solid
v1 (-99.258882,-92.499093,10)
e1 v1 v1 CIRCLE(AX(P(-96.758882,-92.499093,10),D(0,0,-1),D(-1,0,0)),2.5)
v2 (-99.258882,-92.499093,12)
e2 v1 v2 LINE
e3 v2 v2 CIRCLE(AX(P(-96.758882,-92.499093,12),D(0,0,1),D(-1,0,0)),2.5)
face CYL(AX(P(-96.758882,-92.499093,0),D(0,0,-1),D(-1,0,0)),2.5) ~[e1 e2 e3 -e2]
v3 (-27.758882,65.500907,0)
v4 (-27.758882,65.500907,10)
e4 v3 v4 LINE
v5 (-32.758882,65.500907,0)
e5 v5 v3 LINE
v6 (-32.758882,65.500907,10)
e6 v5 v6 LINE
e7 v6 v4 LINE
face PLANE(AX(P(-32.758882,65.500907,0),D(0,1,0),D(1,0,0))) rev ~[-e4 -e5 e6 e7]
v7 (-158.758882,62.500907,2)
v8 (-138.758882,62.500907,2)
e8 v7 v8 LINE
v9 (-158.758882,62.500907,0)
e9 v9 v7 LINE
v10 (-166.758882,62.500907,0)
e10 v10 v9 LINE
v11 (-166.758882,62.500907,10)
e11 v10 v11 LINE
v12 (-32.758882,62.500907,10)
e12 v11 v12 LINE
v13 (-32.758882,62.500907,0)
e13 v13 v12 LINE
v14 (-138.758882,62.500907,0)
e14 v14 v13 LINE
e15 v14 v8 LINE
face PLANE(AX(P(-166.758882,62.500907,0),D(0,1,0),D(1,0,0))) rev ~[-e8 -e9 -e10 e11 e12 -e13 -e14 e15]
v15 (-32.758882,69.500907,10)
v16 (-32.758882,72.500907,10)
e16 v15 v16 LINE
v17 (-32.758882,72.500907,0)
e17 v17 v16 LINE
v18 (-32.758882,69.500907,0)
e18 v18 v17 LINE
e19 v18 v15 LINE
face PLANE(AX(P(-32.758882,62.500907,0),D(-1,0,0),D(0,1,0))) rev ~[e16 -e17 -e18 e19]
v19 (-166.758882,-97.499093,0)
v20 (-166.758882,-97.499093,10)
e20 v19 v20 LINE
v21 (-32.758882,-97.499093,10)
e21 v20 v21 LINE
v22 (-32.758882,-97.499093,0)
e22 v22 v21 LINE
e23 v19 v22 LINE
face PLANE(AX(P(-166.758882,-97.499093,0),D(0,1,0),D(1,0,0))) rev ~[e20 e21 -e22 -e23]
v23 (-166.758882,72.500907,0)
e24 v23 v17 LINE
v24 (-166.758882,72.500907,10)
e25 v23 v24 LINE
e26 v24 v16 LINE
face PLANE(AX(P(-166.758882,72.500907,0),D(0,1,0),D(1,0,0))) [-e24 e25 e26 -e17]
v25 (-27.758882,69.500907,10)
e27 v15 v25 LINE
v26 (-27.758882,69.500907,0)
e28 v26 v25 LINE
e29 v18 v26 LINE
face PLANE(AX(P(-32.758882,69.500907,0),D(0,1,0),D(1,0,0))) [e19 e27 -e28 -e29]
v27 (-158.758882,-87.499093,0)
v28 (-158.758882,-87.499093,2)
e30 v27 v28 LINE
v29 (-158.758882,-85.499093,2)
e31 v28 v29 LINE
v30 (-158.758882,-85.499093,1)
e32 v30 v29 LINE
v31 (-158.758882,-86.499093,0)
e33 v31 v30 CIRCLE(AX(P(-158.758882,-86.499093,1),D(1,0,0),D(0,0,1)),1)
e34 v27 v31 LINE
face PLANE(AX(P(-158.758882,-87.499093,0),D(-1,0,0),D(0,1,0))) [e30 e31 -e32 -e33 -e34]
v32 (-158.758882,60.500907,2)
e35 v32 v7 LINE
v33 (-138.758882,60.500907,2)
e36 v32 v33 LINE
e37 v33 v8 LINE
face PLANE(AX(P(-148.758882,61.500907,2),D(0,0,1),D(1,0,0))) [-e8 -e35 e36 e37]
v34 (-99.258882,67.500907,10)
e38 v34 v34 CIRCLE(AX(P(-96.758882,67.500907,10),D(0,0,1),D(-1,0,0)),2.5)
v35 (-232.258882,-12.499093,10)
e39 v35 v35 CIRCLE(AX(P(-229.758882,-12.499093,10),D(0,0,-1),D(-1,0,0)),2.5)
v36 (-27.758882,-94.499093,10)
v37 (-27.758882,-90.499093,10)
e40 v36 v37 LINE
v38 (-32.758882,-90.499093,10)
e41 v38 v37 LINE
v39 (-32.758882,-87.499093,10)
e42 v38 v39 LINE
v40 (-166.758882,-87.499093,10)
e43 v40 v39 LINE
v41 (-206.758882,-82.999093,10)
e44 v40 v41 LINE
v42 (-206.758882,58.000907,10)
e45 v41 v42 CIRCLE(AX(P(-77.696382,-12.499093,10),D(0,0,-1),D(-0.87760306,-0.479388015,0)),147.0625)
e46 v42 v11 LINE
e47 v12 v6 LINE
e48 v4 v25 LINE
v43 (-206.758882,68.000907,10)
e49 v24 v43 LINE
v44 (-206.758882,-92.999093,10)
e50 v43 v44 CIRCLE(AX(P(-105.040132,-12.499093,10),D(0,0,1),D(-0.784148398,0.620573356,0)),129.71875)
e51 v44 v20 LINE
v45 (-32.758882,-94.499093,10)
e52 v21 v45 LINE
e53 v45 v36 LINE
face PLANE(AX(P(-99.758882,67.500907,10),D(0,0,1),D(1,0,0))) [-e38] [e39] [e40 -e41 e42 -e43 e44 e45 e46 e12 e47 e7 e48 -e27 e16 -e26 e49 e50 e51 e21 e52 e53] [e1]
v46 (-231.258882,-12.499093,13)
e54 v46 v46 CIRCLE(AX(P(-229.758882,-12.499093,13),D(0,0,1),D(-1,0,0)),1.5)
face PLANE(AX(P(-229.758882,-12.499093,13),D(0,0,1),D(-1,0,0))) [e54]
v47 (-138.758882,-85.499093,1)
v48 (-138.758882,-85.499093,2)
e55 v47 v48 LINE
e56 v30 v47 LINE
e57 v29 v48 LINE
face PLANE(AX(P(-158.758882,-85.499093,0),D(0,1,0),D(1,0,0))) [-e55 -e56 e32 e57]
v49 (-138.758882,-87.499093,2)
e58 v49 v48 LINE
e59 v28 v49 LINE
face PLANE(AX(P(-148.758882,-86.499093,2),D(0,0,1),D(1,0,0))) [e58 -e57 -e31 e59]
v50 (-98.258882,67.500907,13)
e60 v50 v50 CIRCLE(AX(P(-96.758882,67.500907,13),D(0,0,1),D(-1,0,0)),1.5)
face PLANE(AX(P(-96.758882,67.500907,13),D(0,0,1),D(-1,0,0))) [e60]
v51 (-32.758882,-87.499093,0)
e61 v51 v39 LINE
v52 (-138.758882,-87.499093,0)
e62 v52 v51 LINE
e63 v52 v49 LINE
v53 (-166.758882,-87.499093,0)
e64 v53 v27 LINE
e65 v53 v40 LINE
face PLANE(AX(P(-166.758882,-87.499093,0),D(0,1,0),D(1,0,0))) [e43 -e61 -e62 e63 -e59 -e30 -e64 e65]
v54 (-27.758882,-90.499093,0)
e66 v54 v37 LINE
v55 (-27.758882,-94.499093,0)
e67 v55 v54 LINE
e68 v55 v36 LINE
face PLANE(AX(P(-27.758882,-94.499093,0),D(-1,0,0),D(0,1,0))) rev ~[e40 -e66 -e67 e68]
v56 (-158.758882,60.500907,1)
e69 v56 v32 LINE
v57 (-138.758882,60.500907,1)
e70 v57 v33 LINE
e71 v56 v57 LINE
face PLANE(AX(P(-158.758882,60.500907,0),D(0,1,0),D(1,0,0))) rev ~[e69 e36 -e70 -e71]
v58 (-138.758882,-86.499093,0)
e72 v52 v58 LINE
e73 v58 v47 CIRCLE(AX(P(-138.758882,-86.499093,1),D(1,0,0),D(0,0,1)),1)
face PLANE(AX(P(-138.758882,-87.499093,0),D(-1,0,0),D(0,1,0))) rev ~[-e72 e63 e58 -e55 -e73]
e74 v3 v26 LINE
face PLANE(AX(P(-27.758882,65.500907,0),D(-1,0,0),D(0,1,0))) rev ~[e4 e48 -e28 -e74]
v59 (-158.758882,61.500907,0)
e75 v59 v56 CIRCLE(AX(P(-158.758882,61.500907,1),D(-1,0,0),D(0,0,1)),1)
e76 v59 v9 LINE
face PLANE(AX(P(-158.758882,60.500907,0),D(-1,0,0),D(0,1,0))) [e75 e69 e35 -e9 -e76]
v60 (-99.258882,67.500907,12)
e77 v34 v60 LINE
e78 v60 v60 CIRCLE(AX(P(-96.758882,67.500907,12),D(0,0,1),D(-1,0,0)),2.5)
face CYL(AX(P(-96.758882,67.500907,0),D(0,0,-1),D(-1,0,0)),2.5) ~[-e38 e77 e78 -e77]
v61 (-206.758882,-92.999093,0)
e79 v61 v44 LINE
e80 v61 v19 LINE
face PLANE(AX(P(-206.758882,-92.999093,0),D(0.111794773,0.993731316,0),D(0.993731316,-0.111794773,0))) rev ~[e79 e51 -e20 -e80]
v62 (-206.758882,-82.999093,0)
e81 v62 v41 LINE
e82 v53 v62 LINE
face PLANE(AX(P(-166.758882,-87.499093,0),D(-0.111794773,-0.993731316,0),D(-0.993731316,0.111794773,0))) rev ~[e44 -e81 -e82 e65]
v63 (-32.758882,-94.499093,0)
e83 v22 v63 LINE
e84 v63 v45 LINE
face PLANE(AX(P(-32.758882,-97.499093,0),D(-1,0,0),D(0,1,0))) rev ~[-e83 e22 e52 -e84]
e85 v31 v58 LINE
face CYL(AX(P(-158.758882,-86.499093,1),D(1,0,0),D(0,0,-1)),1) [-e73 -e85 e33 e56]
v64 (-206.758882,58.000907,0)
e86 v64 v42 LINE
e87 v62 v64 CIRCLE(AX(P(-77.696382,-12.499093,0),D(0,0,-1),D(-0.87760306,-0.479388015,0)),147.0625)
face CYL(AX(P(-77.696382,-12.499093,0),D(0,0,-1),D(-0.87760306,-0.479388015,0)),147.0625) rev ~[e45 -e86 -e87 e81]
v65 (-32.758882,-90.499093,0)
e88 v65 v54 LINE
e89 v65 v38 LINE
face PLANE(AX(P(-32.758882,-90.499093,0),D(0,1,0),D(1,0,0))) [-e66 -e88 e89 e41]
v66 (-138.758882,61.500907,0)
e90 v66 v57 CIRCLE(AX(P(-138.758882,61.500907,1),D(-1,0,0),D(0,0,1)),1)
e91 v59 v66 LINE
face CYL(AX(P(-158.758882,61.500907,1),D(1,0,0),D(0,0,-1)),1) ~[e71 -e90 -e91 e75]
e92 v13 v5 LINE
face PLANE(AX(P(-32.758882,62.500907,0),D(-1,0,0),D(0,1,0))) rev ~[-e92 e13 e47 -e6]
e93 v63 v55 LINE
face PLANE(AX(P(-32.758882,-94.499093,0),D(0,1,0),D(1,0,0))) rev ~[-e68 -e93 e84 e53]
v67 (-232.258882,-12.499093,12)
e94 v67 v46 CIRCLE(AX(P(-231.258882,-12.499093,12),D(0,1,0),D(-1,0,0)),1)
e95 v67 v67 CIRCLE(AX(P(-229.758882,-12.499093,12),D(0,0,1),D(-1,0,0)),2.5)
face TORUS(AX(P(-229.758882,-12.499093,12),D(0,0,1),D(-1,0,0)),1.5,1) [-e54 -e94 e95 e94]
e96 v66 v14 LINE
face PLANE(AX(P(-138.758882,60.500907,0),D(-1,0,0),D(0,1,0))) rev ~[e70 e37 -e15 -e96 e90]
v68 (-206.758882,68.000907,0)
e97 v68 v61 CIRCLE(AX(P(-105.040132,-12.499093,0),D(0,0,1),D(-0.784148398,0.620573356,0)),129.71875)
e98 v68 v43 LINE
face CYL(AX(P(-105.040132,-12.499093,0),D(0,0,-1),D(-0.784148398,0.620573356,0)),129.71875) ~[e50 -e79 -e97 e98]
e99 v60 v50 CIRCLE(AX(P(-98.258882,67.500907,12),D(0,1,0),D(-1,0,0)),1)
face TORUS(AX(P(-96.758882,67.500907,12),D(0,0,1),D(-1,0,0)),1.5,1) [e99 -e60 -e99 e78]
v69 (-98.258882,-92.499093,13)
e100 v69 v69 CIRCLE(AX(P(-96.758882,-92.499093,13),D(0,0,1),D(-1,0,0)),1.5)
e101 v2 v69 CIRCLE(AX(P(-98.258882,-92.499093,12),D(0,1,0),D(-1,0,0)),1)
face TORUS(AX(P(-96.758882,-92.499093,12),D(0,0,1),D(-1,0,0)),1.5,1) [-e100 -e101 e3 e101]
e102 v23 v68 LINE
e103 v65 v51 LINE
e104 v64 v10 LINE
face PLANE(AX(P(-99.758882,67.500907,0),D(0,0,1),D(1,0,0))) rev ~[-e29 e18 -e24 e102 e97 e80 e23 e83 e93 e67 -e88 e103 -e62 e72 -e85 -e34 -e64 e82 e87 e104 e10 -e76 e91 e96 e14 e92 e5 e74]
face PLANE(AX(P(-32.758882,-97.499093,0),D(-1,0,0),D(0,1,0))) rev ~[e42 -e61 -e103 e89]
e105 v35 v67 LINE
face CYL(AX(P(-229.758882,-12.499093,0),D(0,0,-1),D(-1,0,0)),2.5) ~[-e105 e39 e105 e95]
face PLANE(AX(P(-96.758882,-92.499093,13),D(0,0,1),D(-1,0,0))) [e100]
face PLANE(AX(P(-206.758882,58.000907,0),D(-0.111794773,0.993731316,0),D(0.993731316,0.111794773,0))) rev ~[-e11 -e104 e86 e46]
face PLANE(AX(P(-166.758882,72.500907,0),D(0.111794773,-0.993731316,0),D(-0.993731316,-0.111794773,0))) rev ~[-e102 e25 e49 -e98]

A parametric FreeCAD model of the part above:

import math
import FreeCAD as App
import Part
import Sketcher


def edges_at(feature, points):
    """Names of the edges that pass closest to the given points."""
    edges = feature.Shape.Edges
    near = lambda p: min(range(len(edges)), key=lambda i: edges[i].distToShape(Part.Vertex(*p))[0])
    return sorted({f"Edge{near(p) + 1}" for p in points})

doc = App.newDocument("Part")
body = doc.addObject("PartDesign::Body", "Body")

# Sketch on XY plane
sketch1 = body.newObject("Sketcher::SketchObject", "Sketch")
sketch1.AttachmentSupport = (doc.getObject("XY_Plane"), [""])
sketch1.MapMode = "FlatFace"
sketch1.addGeometry([
    Part.LineSegment(App.Vector(-166.8, 62.5, 0), App.Vector(-32.8, 62.5, 0)),  # 0
    Part.LineSegment(App.Vector(-32.8, 62.5, 0), App.Vector(-32.8, 65.5, 0)),  # 1
    Part.LineSegment(App.Vector(-32.8, 65.5, 0), App.Vector(-27.8, 65.5, 0)),  # 2
    Part.LineSegment(App.Vector(-27.8, 65.5, 0), App.Vector(-27.8, 69.5, 0)),  # 3
    Part.LineSegment(App.Vector(-27.8, 69.5, 0), App.Vector(-32.8, 69.5, 0)),  # 4
    Part.LineSegment(App.Vector(-32.8, 69.5, 0), App.Vector(-32.8, 72.5, 0)),  # 5
    Part.LineSegment(App.Vector(-32.8, 72.5, 0), App.Vector(-166.8, 72.5, 0)),  # 6
    Part.LineSegment(App.Vector(-166.8, 72.5, 0), App.Vector(-206.8, 68, 0)),  # 7
    Part.ArcOfCircle(Part.Circle(App.Vector(-105, -12.5, 0), App.Vector(0, 0, 1), 129.7), math.radians(142), math.radians(218)),  # 8
    Part.LineSegment(App.Vector(-206.8, -93, 0), App.Vector(-166.8, -97.5, 0)),  # 9
    Part.LineSegment(App.Vector(-166.8, -97.5, 0), App.Vector(-32.8, -97.5, 0)),  # 10
    Part.LineSegment(App.Vector(-32.8, -97.5, 0), App.Vector(-32.8, -94.5, 0)),  # 11
    Part.LineSegment(App.Vector(-32.8, -94.5, 0), App.Vector(-27.8, -94.5, 0)),  # 12
    Part.LineSegment(App.Vector(-27.8, -94.5, 0), App.Vector(-27.8, -90.5, 0)),  # 13
    Part.LineSegment(App.Vector(-27.8, -90.5, 0), App.Vector(-32.8, -90.5, 0)),  # 14
    Part.LineSegment(App.Vector(-32.8, -90.5, 0), App.Vector(-32.8, -87.5, 0)),  # 15
    Part.LineSegment(App.Vector(-32.8, -87.5, 0), App.Vector(-166.8, -87.5, 0)),  # 16
    Part.LineSegment(App.Vector(-166.8, -87.5, 0), App.Vector(-206.8, -83, 0)),  # 17
    Part.ArcOfCircle(Part.Circle(App.Vector(-77.7, -12.5, 0), App.Vector(0, 0, 1), 147.1), math.radians(151), math.radians(209)),  # 18
    Part.LineSegment(App.Vector(-206.8, 58, 0), App.Vector(-166.8, 62.5, 0)),  # 19
    Part.Circle(App.Vector(-96.8, 67.5, 0), App.Vector(0, 0, 1), 2.5),  # 20
    Part.Circle(App.Vector(-229.8, -12.5, 0), App.Vector(0, 0, 1), 2.5),  # 21
    Part.Circle(App.Vector(-96.8, -92.5, 0), App.Vector(0, 0, 1), 2.5),  # 22
], False)
sketch1.addConstraint([
    Sketcher.Constraint("Coincident", 0, 2, 1, 1),
    Sketcher.Constraint("Coincident", 1, 2, 2, 1),
    Sketcher.Constraint("Coincident", 2, 2, 3, 1),
    Sketcher.Constraint("Coincident", 3, 2, 4, 1),
    Sketcher.Constraint("Coincident", 4, 2, 5, 1),
    Sketcher.Constraint("Coincident", 5, 2, 6, 1),
    Sketcher.Constraint("Coincident", 6, 2, 7, 1),
    Sketcher.Constraint("Coincident", 7, 2, 8, 1),
    Sketcher.Constraint("Coincident", 8, 2, 9, 1),
    Sketcher.Constraint("Coincident", 9, 2, 10, 1),
    Sketcher.Constraint("Coincident", 10, 2, 11, 1),
    Sketcher.Constraint("Coincident", 11, 2, 12, 1),
    Sketcher.Constraint("Coincident", 12, 2, 13, 1),
    Sketcher.Constraint("Coincident", 13, 2, 14, 1),
    Sketcher.Constraint("Coincident", 14, 2, 15, 1),
    Sketcher.Constraint("Coincident", 15, 2, 16, 1),
    Sketcher.Constraint("Coincident", 16, 2, 17, 1),
    Sketcher.Constraint("Coincident", 17, 2, 18, 2),
    Sketcher.Constraint("Coincident", 18, 1, 19, 1),
    Sketcher.Constraint("Coincident", 19, 2, 0, 1),
    Sketcher.Constraint("Horizontal", 0),
    Sketcher.Constraint("Vertical", 1),
    Sketcher.Constraint("Horizontal", 2),
    Sketcher.Constraint("Vertical", 3),
    Sketcher.Constraint("Horizontal", 4),
    Sketcher.Constraint("Vertical", 5),
    Sketcher.Constraint("Horizontal", 6),
    Sketcher.Constraint("Horizontal", 10),
    Sketcher.Constraint("Vertical", 11),
    Sketcher.Constraint("Horizontal", 12),
    Sketcher.Constraint("Vertical", 13),
    Sketcher.Constraint("Horizontal", 14),
    Sketcher.Constraint("Vertical", 15),
    Sketcher.Constraint("Horizontal", 16),
    Sketcher.Constraint("Equal", 20, 21),
    Sketcher.Constraint("Equal", 21, 22),
    Sketcher.Constraint("Parallel", 9, 17),
    Sketcher.Constraint("Parallel", 7, 19),
    Sketcher.Constraint("Horizontal", 8, 3, 18, 3),
    Sketcher.Constraint("Horizontal", 18, 3, 21, 3),
    Sketcher.Constraint("Vertical", 20, 3, 22, 3),
    Sketcher.Constraint("Vertical", 1, 2, 4, 2),
    Sketcher.Constraint("Vertical", 7, 2, 8, 2),
    Sketcher.Constraint("Vertical", 6, 2, 9, 2),
    Sketcher.Constraint("Vertical", 5, 2, 10, 2),
    Sketcher.Constraint("Vertical", 3, 2, 12, 2),
    Sketcher.Constraint("Vertical", 11, 2, 14, 2),
    Sketcher.Constraint("Vertical", 9, 2, 16, 2),
    Sketcher.Constraint("Vertical", 8, 2, 17, 2),
    Sketcher.Constraint("Vertical", 17, 2, 18, 1),
    Sketcher.Constraint("Vertical", 16, 2, 19, 2),
    Sketcher.Constraint("Equal", 1, 5),
    Sketcher.Constraint("Equal", 5, 11),
    Sketcher.Constraint("Equal", 3, 13),
    Sketcher.Constraint("Equal", 7, 9),
    Sketcher.Constraint("Diameter", 20, 5.0),
    Sketcher.Constraint("DistanceX", 0, 1, 0, 2, 134.0),
    Sketcher.Constraint("DistanceX", 2, 1, 2, 2, 5.0),
    Sketcher.Constraint("DistanceY", 1, 1, 1, 2, 3.0),
    Sketcher.Constraint("DistanceY", 3, 1, 3, 2, 4.0),
    Sketcher.Constraint("DistanceY", 8, 3, 20, 3, 80.0),
    Sketcher.Constraint("DistanceX", 21, 3, 20, 3, 133.0),
    Sketcher.Constraint("DistanceY", 22, 3, 8, 3, 80.0),
    Sketcher.Constraint("DistanceX", 20, 3, 0, 2, 64.0),
    Sketcher.Constraint("DistanceY", 0, 2, 20, 3, 5.0),
    Sketcher.Constraint("DistanceX", 7, 2, 6, 2, 40.0),
    Sketcher.Constraint("DistanceY", 8, 2, 7, 2, 161.0),
    Sketcher.Constraint("Radius", 18, 147.0625),
    Sketcher.Constraint("Radius", 8, 129.71875),
    Sketcher.Constraint("DistanceX", 8, 3, -1, 1, 105.040132),
    Sketcher.Constraint("DistanceY", 8, 3, -1, 1, 12.499093),
])
pad1 = body.newObject("PartDesign::Pad", "Pad")
pad1.Profile = sketch1
pad1.Length = 10

# Sketch on XY plane
sketch2 = body.newObject("Sketcher::SketchObject", "Sketch001")
sketch2.AttachmentSupport = (doc.getObject("XY_Plane"), [""])
sketch2.MapMode = "FlatFace"
sketch2.addGeometry([
    Part.Circle(App.Vector(-96.8, 67.5, 0), App.Vector(0, 0, 1), 2.5),
    Part.Circle(App.Vector(-229.8, -12.5, 0), App.Vector(0, 0, 1), 2.5),
    Part.Circle(App.Vector(-96.8, -92.5, 0), App.Vector(0, 0, 1), 2.5),
], False)
sketch2.addConstraint([
    Sketcher.Constraint("Equal", 0, 1),
    Sketcher.Constraint("Equal", 1, 2),
    Sketcher.Constraint("Vertical", 0, 3, 2, 3),
    Sketcher.Constraint("Diameter", 0, 5.0),
    Sketcher.Constraint("DistanceX", 1, 3, 0, 3, 133.0),
    Sketcher.Constraint("DistanceY", 1, 3, 0, 3, 80.0),
    Sketcher.Constraint("DistanceY", 2, 3, 1, 3, 80.0),
    Sketcher.Constraint("DistanceX", 0, 3, -1, 1, 96.758882),
    Sketcher.Constraint("DistanceY", -1, 1, 0, 3, 67.500907),
])
pad2 = body.newObject("PartDesign::Pad", "Pad001")
pad2.Profile = sketch2
pad2.Length = 13
doc.recompute()

fillet = body.newObject("PartDesign::Fillet", "Fillet")
fillet.Base = (pad2, edges_at(pad2, [(-94.259, -92.499, 13)]))
fillet.Radius = 1
doc.recompute()

fillet2 = body.newObject("PartDesign::Fillet", "Fillet001")
fillet2.Base = (fillet, edges_at(fillet, [(-94.259, 67.501, 13), (-227.259, -12.499, 13)]))
fillet2.Radius = 1

# Sketch on XY plane
sketch3 = body.newObject("Sketcher::SketchObject", "Sketch002")
sketch3.AttachmentSupport = (doc.getObject("XY_Plane"), [""])
sketch3.MapMode = "FlatFace"
sketch3.addGeometry([
    Part.LineSegment(App.Vector(-158.8, -85.5, 0), App.Vector(-158.8, -87.5, 0)),  # 0
    Part.LineSegment(App.Vector(-158.8, -87.5, 0), App.Vector(-138.8, -87.5, 0)),  # 1
    Part.LineSegment(App.Vector(-138.8, -87.5, 0), App.Vector(-138.8, -85.5, 0)),  # 2
    Part.LineSegment(App.Vector(-138.8, -85.5, 0), App.Vector(-158.8, -85.5, 0)),  # 3
    Part.LineSegment(App.Vector(-158.8, 62.5, 0), App.Vector(-158.8, 60.5, 0)),  # 4
    Part.LineSegment(App.Vector(-158.8, 60.5, 0), App.Vector(-138.8, 60.5, 0)),  # 5
    Part.LineSegment(App.Vector(-138.8, 60.5, 0), App.Vector(-138.8, 62.5, 0)),  # 6
    Part.LineSegment(App.Vector(-138.8, 62.5, 0), App.Vector(-158.8, 62.5, 0)),  # 7
], False)
sketch3.addConstraint([
    Sketcher.Constraint("Coincident", 0, 2, 1, 1),
    Sketcher.Constraint("Coincident", 1, 2, 2, 1),
    Sketcher.Constraint("Coincident", 2, 2, 3, 1),
    Sketcher.Constraint("Coincident", 3, 2, 0, 1),
    Sketcher.Constraint("Coincident", 4, 2, 5, 1),
    Sketcher.Constraint("Coincident", 5, 2, 6, 1),
    Sketcher.Constraint("Coincident", 6, 2, 7, 1),
    Sketcher.Constraint("Coincident", 7, 2, 4, 1),
    Sketcher.Constraint("Vertical", 0),
    Sketcher.Constraint("Horizontal", 1),
    Sketcher.Constraint("Vertical", 2),
    Sketcher.Constraint("Horizontal", 3),
    Sketcher.Constraint("Vertical", 4),
    Sketcher.Constraint("Horizontal", 5),
    Sketcher.Constraint("Vertical", 6),
    Sketcher.Constraint("Horizontal", 7),
    Sketcher.Constraint("Vertical", 3, 2, 4, 2),
    Sketcher.Constraint("Vertical", 2, 2, 5, 2),
    Sketcher.Constraint("Equal", 2, 4),
    Sketcher.Constraint("DistanceX", 1, 1, 1, 2, 20.0),
    Sketcher.Constraint("DistanceY", 0, 2, 0, 1, 2.0),
    Sketcher.Constraint("DistanceY", 3, 2, 4, 2, 146.0),
    Sketcher.Constraint("DistanceX", 0, 2, -1, 1, 158.758882),
    Sketcher.Constraint("DistanceY", 0, 2, -1, 1, 87.499093),
])
pad3 = body.newObject("PartDesign::Pad", "Pad002")
pad3.Profile = sketch3
pad3.Length = 2
doc.recompute()

fillet3 = body.newObject("PartDesign::Fillet", "Fillet002")
fillet3.Base = (pad3, edges_at(pad3, [(-148.759, -85.499, 0), (-148.759, 60.501, 0)]))
fillet3.Radius = 1

doc.recompute()
